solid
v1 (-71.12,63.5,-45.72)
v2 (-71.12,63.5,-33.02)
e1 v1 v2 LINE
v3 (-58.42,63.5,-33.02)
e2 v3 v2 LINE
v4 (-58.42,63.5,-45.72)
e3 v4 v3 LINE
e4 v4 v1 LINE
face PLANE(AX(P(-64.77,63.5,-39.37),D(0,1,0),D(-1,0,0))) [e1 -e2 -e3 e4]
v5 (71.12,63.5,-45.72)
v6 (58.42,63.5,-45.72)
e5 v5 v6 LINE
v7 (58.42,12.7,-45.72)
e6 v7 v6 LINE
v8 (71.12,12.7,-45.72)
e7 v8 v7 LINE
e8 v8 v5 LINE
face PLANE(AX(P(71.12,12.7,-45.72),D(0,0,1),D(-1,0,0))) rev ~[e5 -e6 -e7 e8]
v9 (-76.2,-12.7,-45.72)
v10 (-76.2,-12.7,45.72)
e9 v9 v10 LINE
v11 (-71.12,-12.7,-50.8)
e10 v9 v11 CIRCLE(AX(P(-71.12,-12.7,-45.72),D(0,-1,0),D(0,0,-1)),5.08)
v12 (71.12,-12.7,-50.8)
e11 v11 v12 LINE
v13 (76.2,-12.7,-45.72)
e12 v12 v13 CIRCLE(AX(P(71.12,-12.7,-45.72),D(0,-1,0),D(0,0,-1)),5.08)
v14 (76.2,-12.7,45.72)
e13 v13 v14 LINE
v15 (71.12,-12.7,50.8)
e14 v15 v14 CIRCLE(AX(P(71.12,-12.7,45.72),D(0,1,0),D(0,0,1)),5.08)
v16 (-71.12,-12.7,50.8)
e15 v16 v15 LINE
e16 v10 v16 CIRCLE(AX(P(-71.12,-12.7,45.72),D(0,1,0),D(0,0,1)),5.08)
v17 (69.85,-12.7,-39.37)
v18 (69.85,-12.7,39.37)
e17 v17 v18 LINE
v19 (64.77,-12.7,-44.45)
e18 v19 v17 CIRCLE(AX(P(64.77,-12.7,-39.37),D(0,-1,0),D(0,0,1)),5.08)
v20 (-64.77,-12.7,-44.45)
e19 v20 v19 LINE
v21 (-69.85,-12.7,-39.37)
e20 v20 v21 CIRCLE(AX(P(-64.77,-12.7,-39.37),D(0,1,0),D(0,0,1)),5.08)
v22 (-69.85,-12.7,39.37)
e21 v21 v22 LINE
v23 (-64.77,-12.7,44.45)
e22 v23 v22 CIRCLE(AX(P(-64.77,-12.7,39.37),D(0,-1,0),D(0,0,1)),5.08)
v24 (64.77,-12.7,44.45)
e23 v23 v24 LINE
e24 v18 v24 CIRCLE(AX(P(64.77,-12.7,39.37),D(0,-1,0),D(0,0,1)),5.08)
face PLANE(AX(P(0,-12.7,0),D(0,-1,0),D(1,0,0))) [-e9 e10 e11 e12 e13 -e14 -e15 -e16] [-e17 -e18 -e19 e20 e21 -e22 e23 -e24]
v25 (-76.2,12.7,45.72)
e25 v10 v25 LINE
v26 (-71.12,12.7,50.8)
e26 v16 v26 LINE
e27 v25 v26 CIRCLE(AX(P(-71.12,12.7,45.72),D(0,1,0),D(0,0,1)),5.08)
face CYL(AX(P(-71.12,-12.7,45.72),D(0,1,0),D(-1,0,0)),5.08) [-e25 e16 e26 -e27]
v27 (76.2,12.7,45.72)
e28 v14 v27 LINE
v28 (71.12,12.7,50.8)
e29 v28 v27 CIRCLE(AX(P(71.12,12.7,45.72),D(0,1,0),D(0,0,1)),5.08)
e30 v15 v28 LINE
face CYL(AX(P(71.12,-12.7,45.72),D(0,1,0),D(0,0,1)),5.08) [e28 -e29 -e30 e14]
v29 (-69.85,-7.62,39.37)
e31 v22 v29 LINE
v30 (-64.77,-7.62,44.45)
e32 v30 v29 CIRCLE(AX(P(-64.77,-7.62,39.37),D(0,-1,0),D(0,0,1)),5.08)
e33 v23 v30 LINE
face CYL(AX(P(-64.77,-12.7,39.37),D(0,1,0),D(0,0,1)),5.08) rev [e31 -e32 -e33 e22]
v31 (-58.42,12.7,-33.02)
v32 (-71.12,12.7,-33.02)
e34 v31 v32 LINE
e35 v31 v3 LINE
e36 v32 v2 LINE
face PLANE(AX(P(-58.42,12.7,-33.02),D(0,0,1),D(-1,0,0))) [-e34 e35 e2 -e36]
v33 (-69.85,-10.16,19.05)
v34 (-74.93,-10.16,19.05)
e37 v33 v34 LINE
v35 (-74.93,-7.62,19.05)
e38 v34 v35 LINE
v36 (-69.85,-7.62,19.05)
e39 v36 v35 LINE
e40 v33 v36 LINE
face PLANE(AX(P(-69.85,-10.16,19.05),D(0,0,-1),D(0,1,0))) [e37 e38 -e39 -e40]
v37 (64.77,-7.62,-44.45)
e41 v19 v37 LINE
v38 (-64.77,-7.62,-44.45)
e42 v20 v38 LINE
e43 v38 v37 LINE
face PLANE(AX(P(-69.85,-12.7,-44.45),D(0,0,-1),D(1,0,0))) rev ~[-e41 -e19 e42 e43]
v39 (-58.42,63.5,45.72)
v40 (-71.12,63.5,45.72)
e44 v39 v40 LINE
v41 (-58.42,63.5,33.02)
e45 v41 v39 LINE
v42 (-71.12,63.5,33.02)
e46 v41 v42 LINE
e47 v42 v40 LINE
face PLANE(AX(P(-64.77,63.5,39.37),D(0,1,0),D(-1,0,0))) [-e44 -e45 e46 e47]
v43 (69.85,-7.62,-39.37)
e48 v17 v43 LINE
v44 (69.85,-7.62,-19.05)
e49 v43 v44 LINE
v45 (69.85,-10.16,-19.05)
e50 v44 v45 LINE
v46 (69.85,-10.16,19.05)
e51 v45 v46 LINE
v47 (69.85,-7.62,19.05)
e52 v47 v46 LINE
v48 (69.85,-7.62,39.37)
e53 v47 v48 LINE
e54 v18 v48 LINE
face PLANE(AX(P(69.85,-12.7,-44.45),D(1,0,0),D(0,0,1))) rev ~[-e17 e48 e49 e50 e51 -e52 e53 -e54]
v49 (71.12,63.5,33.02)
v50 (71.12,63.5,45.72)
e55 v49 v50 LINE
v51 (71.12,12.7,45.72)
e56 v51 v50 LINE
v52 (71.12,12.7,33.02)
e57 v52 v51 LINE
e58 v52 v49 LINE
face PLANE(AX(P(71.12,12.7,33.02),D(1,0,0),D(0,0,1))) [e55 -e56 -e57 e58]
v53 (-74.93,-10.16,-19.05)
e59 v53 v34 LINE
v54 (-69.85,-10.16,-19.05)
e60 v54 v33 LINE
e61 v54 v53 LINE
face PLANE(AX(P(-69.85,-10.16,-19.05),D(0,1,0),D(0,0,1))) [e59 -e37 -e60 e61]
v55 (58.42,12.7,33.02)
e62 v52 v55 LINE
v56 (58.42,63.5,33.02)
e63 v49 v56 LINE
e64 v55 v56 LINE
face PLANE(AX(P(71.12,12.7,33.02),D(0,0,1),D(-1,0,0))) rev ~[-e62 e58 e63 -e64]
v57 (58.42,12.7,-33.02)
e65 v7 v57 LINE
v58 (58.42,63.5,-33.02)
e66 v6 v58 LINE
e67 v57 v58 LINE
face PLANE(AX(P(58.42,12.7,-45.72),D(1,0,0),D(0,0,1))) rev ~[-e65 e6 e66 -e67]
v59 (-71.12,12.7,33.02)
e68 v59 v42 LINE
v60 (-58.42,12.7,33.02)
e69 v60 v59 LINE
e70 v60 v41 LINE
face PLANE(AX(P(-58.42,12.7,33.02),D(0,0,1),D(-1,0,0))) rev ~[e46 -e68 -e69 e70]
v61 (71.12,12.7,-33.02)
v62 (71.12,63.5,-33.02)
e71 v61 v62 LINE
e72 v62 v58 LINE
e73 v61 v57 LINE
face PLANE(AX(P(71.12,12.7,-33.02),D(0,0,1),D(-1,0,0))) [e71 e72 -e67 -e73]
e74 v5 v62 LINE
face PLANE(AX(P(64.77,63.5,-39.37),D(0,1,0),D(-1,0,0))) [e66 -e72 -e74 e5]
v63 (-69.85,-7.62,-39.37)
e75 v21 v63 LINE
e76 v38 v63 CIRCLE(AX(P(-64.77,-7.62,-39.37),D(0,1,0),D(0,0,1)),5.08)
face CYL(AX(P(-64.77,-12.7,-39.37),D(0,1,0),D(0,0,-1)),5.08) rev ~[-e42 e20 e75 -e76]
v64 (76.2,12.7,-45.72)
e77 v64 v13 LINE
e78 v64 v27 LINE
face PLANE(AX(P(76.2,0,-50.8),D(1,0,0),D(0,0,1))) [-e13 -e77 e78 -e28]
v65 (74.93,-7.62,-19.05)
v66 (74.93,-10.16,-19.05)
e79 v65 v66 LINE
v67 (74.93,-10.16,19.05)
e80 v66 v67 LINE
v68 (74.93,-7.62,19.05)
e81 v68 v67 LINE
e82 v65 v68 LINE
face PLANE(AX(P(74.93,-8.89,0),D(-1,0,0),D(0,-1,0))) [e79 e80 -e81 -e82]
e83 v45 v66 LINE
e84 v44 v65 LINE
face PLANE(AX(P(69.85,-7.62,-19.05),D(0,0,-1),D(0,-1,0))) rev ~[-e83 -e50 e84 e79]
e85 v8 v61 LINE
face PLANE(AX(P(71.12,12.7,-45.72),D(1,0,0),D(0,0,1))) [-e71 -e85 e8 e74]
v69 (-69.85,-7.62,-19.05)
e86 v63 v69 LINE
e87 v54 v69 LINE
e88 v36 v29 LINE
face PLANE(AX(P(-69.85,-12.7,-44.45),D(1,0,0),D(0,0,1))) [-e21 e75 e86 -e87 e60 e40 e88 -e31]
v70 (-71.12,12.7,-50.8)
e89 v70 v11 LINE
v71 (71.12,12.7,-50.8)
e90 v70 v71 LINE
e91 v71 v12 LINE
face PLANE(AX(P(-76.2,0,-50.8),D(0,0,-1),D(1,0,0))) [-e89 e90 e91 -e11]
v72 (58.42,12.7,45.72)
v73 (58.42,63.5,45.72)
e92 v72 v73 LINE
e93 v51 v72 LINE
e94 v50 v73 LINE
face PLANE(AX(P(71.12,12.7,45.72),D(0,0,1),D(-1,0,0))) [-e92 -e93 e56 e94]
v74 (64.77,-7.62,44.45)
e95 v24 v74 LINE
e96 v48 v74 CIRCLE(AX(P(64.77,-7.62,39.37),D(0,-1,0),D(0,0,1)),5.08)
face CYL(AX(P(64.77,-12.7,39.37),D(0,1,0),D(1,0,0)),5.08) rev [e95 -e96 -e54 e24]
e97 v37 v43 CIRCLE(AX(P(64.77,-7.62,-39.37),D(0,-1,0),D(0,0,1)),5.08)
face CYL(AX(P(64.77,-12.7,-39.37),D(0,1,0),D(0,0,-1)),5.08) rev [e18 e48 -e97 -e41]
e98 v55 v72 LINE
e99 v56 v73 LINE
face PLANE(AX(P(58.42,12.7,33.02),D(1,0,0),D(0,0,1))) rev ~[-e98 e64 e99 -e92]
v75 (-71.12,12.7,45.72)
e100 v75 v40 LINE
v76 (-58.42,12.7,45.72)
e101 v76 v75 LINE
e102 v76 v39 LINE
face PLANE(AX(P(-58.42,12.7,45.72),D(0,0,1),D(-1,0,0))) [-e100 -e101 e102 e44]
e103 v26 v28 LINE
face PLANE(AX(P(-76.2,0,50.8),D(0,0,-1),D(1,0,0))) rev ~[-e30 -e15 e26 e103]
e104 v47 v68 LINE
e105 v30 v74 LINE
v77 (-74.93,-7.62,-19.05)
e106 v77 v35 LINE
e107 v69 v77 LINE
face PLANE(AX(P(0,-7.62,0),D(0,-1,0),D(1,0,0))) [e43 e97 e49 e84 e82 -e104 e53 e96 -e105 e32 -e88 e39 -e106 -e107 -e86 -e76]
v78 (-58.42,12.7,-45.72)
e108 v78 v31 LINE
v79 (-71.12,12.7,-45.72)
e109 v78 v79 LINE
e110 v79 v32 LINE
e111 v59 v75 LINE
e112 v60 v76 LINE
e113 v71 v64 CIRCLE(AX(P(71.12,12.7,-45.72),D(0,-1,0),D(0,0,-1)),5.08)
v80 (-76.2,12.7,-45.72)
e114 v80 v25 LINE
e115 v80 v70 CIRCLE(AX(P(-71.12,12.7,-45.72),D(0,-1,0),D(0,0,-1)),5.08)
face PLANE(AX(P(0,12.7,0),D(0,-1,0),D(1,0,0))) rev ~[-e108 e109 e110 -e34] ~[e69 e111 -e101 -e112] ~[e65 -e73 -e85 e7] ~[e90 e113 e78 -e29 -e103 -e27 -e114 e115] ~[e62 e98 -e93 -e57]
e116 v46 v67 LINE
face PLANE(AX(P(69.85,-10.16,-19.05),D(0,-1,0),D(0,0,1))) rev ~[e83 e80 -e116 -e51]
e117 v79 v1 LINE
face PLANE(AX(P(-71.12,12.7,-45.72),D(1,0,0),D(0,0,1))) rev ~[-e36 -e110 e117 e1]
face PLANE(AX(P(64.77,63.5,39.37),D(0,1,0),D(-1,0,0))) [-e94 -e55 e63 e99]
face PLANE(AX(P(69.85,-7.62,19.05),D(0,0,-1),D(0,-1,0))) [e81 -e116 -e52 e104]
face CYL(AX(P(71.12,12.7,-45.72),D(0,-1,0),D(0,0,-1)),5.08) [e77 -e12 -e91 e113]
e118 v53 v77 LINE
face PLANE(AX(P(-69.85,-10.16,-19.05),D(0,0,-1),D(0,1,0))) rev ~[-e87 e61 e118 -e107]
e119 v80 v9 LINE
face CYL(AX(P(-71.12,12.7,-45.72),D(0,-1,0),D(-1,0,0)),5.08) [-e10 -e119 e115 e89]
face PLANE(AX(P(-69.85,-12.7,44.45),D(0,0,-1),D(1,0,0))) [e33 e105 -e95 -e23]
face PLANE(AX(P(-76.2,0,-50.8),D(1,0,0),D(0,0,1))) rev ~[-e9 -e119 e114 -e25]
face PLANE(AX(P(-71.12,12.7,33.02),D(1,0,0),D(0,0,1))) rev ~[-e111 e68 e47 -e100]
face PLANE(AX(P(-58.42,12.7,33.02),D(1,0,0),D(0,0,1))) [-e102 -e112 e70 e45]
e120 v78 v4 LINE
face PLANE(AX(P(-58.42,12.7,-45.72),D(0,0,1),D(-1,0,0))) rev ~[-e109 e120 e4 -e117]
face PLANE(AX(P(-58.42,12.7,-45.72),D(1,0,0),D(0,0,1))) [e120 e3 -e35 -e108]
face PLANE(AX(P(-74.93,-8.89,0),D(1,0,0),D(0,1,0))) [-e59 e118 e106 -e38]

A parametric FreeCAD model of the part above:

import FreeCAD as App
import Part
import Sketcher

V = App.Vector
Q = App.Units.Quantity


def edges_at(feature, points):
    """Names of the edges that pass closest to the given points."""
    edges = feature.Shape.Edges
    near = lambda p: min(range(len(edges)), key=lambda i: edges[i].distToShape(Part.Vertex(*p))[0])
    return sorted({f"Edge{near(p) + 1}" for p in points})

doc = App.newDocument("Part")
params = doc.addObject("Spreadsheet::Sheet", "Params")
for row, (alias, value) in enumerate([
    ("sketch1_width", "6 in"),
    ("sketch1_height", "4 in"),
    ("pad1_length", "1 in"),
    ("sketch2_width", "5.5 in"),
    ("sketch2_height", "3.5 in"),
    ("pocket1_length", "0.2 in"),
    ("fillet_radius", "0.2 in"),
    ("sketch3_width", "0.1 in"),
    ("sketch3_height", "1.5 in"),
    ("pocket2_length", "0.2 in"),
    ("sketch4_width", "0.1 in"),
    ("sketch4_height", "1.5 in"),
    ("pocket3_length", "0.2 in"),
    ("sketch5_width", "0.5 in"),
    ("pad2_length", "2 in"),
], start=1):
    params.set(f"A{row}", alias)
    params.set(f"B{row}", "=" + value)
    params.setAlias(f"B{row}", alias)

body = doc.addObject("PartDesign::Body", "Body")

# Sketch on XZ plane
sketch1 = body.newObject("Sketcher::SketchObject", "Sketch")
sketch1.AttachmentSupport = (doc.getObject("XZ_Plane"), [""])
sketch1.MapMode = "FlatFace"
sketch1.addGeometry(Part.LineSegment(V(-76.2, 50.8, 0), V(-76.2, -50.8, 0)), False)
sketch1.addGeometry(Part.LineSegment(V(-76.2, -50.8, 0), V(76.2, -50.8, 0)), False)
sketch1.addGeometry(Part.LineSegment(V(76.2, -50.8, 0), V(76.2, 50.8, 0)), False)
sketch1.addGeometry(Part.LineSegment(V(76.2, 50.8, 0), V(-76.2, 50.8, 0)), False)
sketch1.addConstraint(Sketcher.Constraint("Coincident", 0, 2, 1, 1))
sketch1.addConstraint(Sketcher.Constraint("Coincident", 1, 2, 2, 1))
sketch1.addConstraint(Sketcher.Constraint("Coincident", 2, 2, 3, 1))
sketch1.addConstraint(Sketcher.Constraint("Coincident", 3, 2, 0, 1))
sketch1.addConstraint(Sketcher.Constraint("Vertical", 0))
sketch1.addConstraint(Sketcher.Constraint("Horizontal", 1))
sketch1.addConstraint(Sketcher.Constraint("Vertical", 2))
sketch1.addConstraint(Sketcher.Constraint("Horizontal", 3))
sketch1.addConstraint(Sketcher.Constraint("Symmetric", 0, 2, 2, 2, -1, 1))
sketch1.addConstraint(Sketcher.Constraint("DistanceX", 1, 1, 1, 2, Q("6 in")))
sketch1.addConstraint(Sketcher.Constraint("DistanceY", 0, 2, 0, 1, Q("4 in")))
sketch1.setExpression("Constraints[9]", "Params.sketch1_width")
sketch1.setExpression("Constraints[10]", "Params.sketch1_height")
pad1 = body.newObject("PartDesign::Pad", "Pad")
pad1.Profile = sketch1
pad1.setExpression("Length", "Params.pad1_length")
pad1.Midplane = True

# Sketch on XZ plane
sketch2 = body.newObject("Sketcher::SketchObject", "Sketch001")
sketch2.AttachmentSupport = (doc.getObject("XZ_Plane"), [""])
sketch2.MapMode = "FlatFace"
sketch2.AttachmentOffset = App.Placement(V(0, 0, 0.5 * 25.4), App.Rotation())
sketch2.addGeometry(Part.LineSegment(V(-69.85, 44.45, 0), V(-69.85, -44.45, 0)), False)
sketch2.addGeometry(Part.LineSegment(V(-69.85, -44.45, 0), V(69.85, -44.45, 0)), False)
sketch2.addGeometry(Part.LineSegment(V(69.85, -44.45, 0), V(69.85, 44.45, 0)), False)
sketch2.addGeometry(Part.LineSegment(V(69.85, 44.45, 0), V(-69.85, 44.45, 0)), False)
sketch2.addConstraint(Sketcher.Constraint("Coincident", 0, 2, 1, 1))
sketch2.addConstraint(Sketcher.Constraint("Coincident", 1, 2, 2, 1))
sketch2.addConstraint(Sketcher.Constraint("Coincident", 2, 2, 3, 1))
sketch2.addConstraint(Sketcher.Constraint("Coincident", 3, 2, 0, 1))
sketch2.addConstraint(Sketcher.Constraint("Vertical", 0))
sketch2.addConstraint(Sketcher.Constraint("Horizontal", 1))
sketch2.addConstraint(Sketcher.Constraint("Vertical", 2))
sketch2.addConstraint(Sketcher.Constraint("Horizontal", 3))
sketch2.addConstraint(Sketcher.Constraint("Symmetric", 0, 2, 2, 2, -1, 1))
sketch2.addConstraint(Sketcher.Constraint("DistanceX", 1, 1, 1, 2, Q("5.5 in")))
sketch2.addConstraint(Sketcher.Constraint("DistanceY", 0, 2, 0, 1, Q("3.5 in")))
sketch2.setExpression("Constraints[9]", "Params.sketch2_width")
sketch2.setExpression("Constraints[10]", "Params.sketch2_height")
pocket1 = body.newObject("PartDesign::Pocket", "Pocket")
pocket1.Profile = sketch2
pocket1.setExpression("Length", "Params.pocket1_length")
doc.recompute()

fillet = body.newObject("PartDesign::Fillet", "Fillet")
fillet.Base = (pocket1, edges_at(pocket1, [
    (-69.85, -10.16, -44.45),
    (69.85, -10.16, -44.45),
    (69.85, -10.16, 44.45),
    (-69.85, -10.16, 44.45),
    (-76.2, 0, 50.8),
    (-76.2, 0, -50.8),
    (76.2, 0, 50.8),
    (76.2, 0, -50.8),
]))
fillet.setExpression("Radius", "Params.fillet_radius")

# Sketch on YZ plane
sketch3 = body.newObject("Sketcher::SketchObject", "Sketch002")
sketch3.AttachmentSupport = (doc.getObject("YZ_Plane"), [""])
sketch3.MapMode = "FlatFace"
sketch3.AttachmentOffset = App.Placement(V(0, 0, -2.75 * 25.4), App.Rotation())
sketch3.addGeometry(Part.LineSegment(V(-10.16, 19.05, 0), V(-10.16, -19.05, 0)), False)
sketch3.addGeometry(Part.LineSegment(V(-10.16, -19.05, 0), V(-7.62, -19.05, 0)), False)
sketch3.addGeometry(Part.LineSegment(V(-7.62, -19.05, 0), V(-7.62, 19.05, 0)), False)
sketch3.addGeometry(Part.LineSegment(V(-7.62, 19.05, 0), V(-10.16, 19.05, 0)), False)
sketch3.addConstraint(Sketcher.Constraint("Coincident", 0, 2, 1, 1))
sketch3.addConstraint(Sketcher.Constraint("Coincident", 1, 2, 2, 1))
sketch3.addConstraint(Sketcher.Constraint("Coincident", 2, 2, 3, 1))
sketch3.addConstraint(Sketcher.Constraint("Coincident", 3, 2, 0, 1))
sketch3.addConstraint(Sketcher.Constraint("Vertical", 0))
sketch3.addConstraint(Sketcher.Constraint("Horizontal", 1))
sketch3.addConstraint(Sketcher.Constraint("Vertical", 2))
sketch3.addConstraint(Sketcher.Constraint("Horizontal", 3))
sketch3.addConstraint(Sketcher.Constraint("DistanceX", 1, 1, 1, 2, Q("0.1 in")))
sketch3.addConstraint(Sketcher.Constraint("DistanceY", 0, 2, 0, 1, Q("1.5 in")))
sketch3.addConstraint(Sketcher.Constraint("DistanceX", 0, 2, -1, 1, Q("0.4 in")))
sketch3.addConstraint(Sketcher.Constraint("DistanceY", 0, 2, -1, 1, Q("0.75 in")))
sketch3.setExpression("Constraints[8]", "Params.sketch3_width")
sketch3.setExpression("Constraints[9]", "Params.sketch3_height")
pocket2 = body.newObject("PartDesign::Pocket", "Pocket001")
pocket2.Profile = sketch3
pocket2.setExpression("Length", "Params.pocket2_length")

# Sketch on YZ plane
sketch4 = body.newObject("Sketcher::SketchObject", "Sketch003")
sketch4.AttachmentSupport = (doc.getObject("YZ_Plane"), [""])
sketch4.MapMode = "FlatFace"
sketch4.AttachmentOffset = App.Placement(V(0, 0, 2.75 * 25.4), App.Rotation())
sketch4.addGeometry(Part.LineSegment(V(-7.62, 19.05, 0), V(-7.62, -19.05, 0)), False)
sketch4.addGeometry(Part.LineSegment(V(-7.62, -19.05, 0), V(-10.16, -19.05, 0)), False)
sketch4.addGeometry(Part.LineSegment(V(-10.16, -19.05, 0), V(-10.16, 19.05, 0)), False)
sketch4.addGeometry(Part.LineSegment(V(-10.16, 19.05, 0), V(-7.62, 19.05, 0)), False)
sketch4.addConstraint(Sketcher.Constraint("Coincident", 0, 2, 1, 1))
sketch4.addConstraint(Sketcher.Constraint("Coincident", 1, 2, 2, 1))
sketch4.addConstraint(Sketcher.Constraint("Coincident", 2, 2, 3, 1))
sketch4.addConstraint(Sketcher.Constraint("Coincident", 3, 2, 0, 1))
sketch4.addConstraint(Sketcher.Constraint("Vertical", 0))
sketch4.addConstraint(Sketcher.Constraint("Horizontal", 1))
sketch4.addConstraint(Sketcher.Constraint("Vertical", 2))
sketch4.addConstraint(Sketcher.Constraint("Horizontal", 3))
sketch4.addConstraint(Sketcher.Constraint("DistanceX", 1, 2, 1, 1, Q("0.1 in")))
sketch4.addConstraint(Sketcher.Constraint("DistanceY", 0, 2, 0, 1, Q("1.5 in")))
sketch4.addConstraint(Sketcher.Constraint("DistanceX", 0, 2, -1, 1, Q("0.3 in")))
sketch4.addConstraint(Sketcher.Constraint("DistanceY", 0, 2, -1, 1, Q("0.75 in")))
sketch4.setExpression("Constraints[8]", "Params.sketch4_width")
sketch4.setExpression("Constraints[9]", "Params.sketch4_height")
pocket3 = body.newObject("PartDesign::Pocket", "Pocket002")
pocket3.Profile = sketch4
pocket3.setExpression("Length", "Params.pocket3_length")
pocket3.Reversed = True

# Sketch on XZ plane
sketch5 = body.newObject("Sketcher::SketchObject", "Sketch004")
sketch5.AttachmentSupport = (doc.getObject("XZ_Plane"), [""])
sketch5.MapMode = "FlatFace"
sketch5.AttachmentOffset = App.Placement(V(0, 0, -0.5 * 25.4), App.Rotation())
sketch5.addGeometry(Part.LineSegment(V(-58.42, 45.72, 0), V(-58.42, 33.02, 0)), False)
sketch5.addGeometry(Part.LineSegment(V(-58.42, 33.02, 0), V(-71.12, 33.02, 0)), False)
sketch5.addGeometry(Part.LineSegment(V(-71.12, 33.02, 0), V(-71.12, 45.72, 0)), False)
sketch5.addGeometry(Part.LineSegment(V(-71.12, 45.72, 0), V(-58.42, 45.72, 0)), False)
sketch5.addGeometry(Part.LineSegment(V(-58.42, -33.02, 0), V(-58.42, -45.72, 0)), False)
sketch5.addGeometry(Part.LineSegment(V(-58.42, -45.72, 0), V(-71.12, -45.72, 0)), False)
sketch5.addGeometry(Part.LineSegment(V(-71.12, -45.72, 0), V(-71.12, -33.02, 0)), False)
sketch5.addGeometry(Part.LineSegment(V(-71.12, -33.02, 0), V(-58.42, -33.02, 0)), False)
sketch5.addGeometry(Part.LineSegment(V(71.12, 45.72, 0), V(71.12, 33.02, 0)), False)
sketch5.addGeometry(Part.LineSegment(V(71.12, 33.02, 0), V(58.42, 33.02, 0)), False)
sketch5.addGeometry(Part.LineSegment(V(58.42, 33.02, 0), V(58.42, 45.72, 0)), False)
sketch5.addGeometry(Part.LineSegment(V(58.42, 45.72, 0), V(71.12, 45.72, 0)), False)
sketch5.addGeometry(Part.LineSegment(V(71.12, -33.02, 0), V(71.12, -45.72, 0)), False)
sketch5.addGeometry(Part.LineSegment(V(71.12, -45.72, 0), V(58.42, -45.72, 0)), False)
sketch5.addGeometry(Part.LineSegment(V(58.42, -45.72, 0), V(58.42, -33.02, 0)), False)
sketch5.addGeometry(Part.LineSegment(V(58.42, -33.02, 0), V(71.12, -33.02, 0)), False)
sketch5.addConstraint(Sketcher.Constraint("Coincident", 0, 2, 1, 1))
sketch5.addConstraint(Sketcher.Constraint("Coincident", 1, 2, 2, 1))
sketch5.addConstraint(Sketcher.Constraint("Coincident", 2, 2, 3, 1))
sketch5.addConstraint(Sketcher.Constraint("Coincident", 3, 2, 0, 1))
sketch5.addConstraint(Sketcher.Constraint("Coincident", 4, 2, 5, 1))
sketch5.addConstraint(Sketcher.Constraint("Coincident", 5, 2, 6, 1))
sketch5.addConstraint(Sketcher.Constraint("Coincident", 6, 2, 7, 1))
sketch5.addConstraint(Sketcher.Constraint("Coincident", 7, 2, 4, 1))
sketch5.addConstraint(Sketcher.Constraint("Coincident", 8, 2, 9, 1))
sketch5.addConstraint(Sketcher.Constraint("Coincident", 9, 2, 10, 1))
sketch5.addConstraint(Sketcher.Constraint("Coincident", 10, 2, 11, 1))
sketch5.addConstraint(Sketcher.Constraint("Coincident", 11, 2, 8, 1))
sketch5.addConstraint(Sketcher.Constraint("Coincident", 12, 2, 13, 1))
sketch5.addConstraint(Sketcher.Constraint("Coincident", 13, 2, 14, 1))
sketch5.addConstraint(Sketcher.Constraint("Coincident", 14, 2, 15, 1))
sketch5.addConstraint(Sketcher.Constraint("Coincident", 15, 2, 12, 1))
sketch5.addConstraint(Sketcher.Constraint("Vertical", 0))
sketch5.addConstraint(Sketcher.Constraint("Horizontal", 1))
sketch5.addConstraint(Sketcher.Constraint("Vertical", 2))
sketch5.addConstraint(Sketcher.Constraint("Horizontal", 3))
sketch5.addConstraint(Sketcher.Constraint("Vertical", 4))
sketch5.addConstraint(Sketcher.Constraint("Horizontal", 5))
sketch5.addConstraint(Sketcher.Constraint("Vertical", 6))
sketch5.addConstraint(Sketcher.Constraint("Horizontal", 7))
sketch5.addConstraint(Sketcher.Constraint("Vertical", 8))
sketch5.addConstraint(Sketcher.Constraint("Horizontal", 9))
sketch5.addConstraint(Sketcher.Constraint("Vertical", 10))
sketch5.addConstraint(Sketcher.Constraint("Horizontal", 11))
sketch5.addConstraint(Sketcher.Constraint("Vertical", 12))
sketch5.addConstraint(Sketcher.Constraint("Horizontal", 13))
sketch5.addConstraint(Sketcher.Constraint("Vertical", 14))
sketch5.addConstraint(Sketcher.Constraint("Horizontal", 15))
sketch5.addConstraint(Sketcher.Constraint("Symmetric", 6, 2, 8, 2, -1, 1))
sketch5.addConstraint(Sketcher.Constraint("Symmetric", 4, 2, 10, 2, -1, 1))
sketch5.addConstraint(Sketcher.Constraint("Symmetric", 2, 2, 12, 2, -1, 1))
sketch5.addConstraint(Sketcher.Constraint("Symmetric", 0, 2, 14, 2, -1, 1))
sketch5.addConstraint(Sketcher.Constraint("Symmetric", 1, 2, 8, 2, -2))
sketch5.addConstraint(Sketcher.Constraint("Symmetric", 3, 2, 10, 2, -2))
sketch5.addConstraint(Sketcher.Constraint("Equal", 15, 0))
sketch5.addConstraint(Sketcher.Constraint("DistanceX", 1, 2, 1, 1, Q("0.5 in")))
sketch5.addConstraint(Sketcher.Constraint("DistanceX", 0, 2, -1, 1, Q("2.3 in")))
sketch5.addConstraint(Sketcher.Constraint("DistanceY", -1, 1, 0, 2, Q("1.3 in")))
sketch5.setExpression("Constraints[39]", "Params.sketch5_width")
pad2 = body.newObject("PartDesign::Pad", "Pad001")
pad2.Profile = sketch5
pad2.setExpression("Length", "Params.pad2_length")
pad2.Reversed = True

doc.recompute()
